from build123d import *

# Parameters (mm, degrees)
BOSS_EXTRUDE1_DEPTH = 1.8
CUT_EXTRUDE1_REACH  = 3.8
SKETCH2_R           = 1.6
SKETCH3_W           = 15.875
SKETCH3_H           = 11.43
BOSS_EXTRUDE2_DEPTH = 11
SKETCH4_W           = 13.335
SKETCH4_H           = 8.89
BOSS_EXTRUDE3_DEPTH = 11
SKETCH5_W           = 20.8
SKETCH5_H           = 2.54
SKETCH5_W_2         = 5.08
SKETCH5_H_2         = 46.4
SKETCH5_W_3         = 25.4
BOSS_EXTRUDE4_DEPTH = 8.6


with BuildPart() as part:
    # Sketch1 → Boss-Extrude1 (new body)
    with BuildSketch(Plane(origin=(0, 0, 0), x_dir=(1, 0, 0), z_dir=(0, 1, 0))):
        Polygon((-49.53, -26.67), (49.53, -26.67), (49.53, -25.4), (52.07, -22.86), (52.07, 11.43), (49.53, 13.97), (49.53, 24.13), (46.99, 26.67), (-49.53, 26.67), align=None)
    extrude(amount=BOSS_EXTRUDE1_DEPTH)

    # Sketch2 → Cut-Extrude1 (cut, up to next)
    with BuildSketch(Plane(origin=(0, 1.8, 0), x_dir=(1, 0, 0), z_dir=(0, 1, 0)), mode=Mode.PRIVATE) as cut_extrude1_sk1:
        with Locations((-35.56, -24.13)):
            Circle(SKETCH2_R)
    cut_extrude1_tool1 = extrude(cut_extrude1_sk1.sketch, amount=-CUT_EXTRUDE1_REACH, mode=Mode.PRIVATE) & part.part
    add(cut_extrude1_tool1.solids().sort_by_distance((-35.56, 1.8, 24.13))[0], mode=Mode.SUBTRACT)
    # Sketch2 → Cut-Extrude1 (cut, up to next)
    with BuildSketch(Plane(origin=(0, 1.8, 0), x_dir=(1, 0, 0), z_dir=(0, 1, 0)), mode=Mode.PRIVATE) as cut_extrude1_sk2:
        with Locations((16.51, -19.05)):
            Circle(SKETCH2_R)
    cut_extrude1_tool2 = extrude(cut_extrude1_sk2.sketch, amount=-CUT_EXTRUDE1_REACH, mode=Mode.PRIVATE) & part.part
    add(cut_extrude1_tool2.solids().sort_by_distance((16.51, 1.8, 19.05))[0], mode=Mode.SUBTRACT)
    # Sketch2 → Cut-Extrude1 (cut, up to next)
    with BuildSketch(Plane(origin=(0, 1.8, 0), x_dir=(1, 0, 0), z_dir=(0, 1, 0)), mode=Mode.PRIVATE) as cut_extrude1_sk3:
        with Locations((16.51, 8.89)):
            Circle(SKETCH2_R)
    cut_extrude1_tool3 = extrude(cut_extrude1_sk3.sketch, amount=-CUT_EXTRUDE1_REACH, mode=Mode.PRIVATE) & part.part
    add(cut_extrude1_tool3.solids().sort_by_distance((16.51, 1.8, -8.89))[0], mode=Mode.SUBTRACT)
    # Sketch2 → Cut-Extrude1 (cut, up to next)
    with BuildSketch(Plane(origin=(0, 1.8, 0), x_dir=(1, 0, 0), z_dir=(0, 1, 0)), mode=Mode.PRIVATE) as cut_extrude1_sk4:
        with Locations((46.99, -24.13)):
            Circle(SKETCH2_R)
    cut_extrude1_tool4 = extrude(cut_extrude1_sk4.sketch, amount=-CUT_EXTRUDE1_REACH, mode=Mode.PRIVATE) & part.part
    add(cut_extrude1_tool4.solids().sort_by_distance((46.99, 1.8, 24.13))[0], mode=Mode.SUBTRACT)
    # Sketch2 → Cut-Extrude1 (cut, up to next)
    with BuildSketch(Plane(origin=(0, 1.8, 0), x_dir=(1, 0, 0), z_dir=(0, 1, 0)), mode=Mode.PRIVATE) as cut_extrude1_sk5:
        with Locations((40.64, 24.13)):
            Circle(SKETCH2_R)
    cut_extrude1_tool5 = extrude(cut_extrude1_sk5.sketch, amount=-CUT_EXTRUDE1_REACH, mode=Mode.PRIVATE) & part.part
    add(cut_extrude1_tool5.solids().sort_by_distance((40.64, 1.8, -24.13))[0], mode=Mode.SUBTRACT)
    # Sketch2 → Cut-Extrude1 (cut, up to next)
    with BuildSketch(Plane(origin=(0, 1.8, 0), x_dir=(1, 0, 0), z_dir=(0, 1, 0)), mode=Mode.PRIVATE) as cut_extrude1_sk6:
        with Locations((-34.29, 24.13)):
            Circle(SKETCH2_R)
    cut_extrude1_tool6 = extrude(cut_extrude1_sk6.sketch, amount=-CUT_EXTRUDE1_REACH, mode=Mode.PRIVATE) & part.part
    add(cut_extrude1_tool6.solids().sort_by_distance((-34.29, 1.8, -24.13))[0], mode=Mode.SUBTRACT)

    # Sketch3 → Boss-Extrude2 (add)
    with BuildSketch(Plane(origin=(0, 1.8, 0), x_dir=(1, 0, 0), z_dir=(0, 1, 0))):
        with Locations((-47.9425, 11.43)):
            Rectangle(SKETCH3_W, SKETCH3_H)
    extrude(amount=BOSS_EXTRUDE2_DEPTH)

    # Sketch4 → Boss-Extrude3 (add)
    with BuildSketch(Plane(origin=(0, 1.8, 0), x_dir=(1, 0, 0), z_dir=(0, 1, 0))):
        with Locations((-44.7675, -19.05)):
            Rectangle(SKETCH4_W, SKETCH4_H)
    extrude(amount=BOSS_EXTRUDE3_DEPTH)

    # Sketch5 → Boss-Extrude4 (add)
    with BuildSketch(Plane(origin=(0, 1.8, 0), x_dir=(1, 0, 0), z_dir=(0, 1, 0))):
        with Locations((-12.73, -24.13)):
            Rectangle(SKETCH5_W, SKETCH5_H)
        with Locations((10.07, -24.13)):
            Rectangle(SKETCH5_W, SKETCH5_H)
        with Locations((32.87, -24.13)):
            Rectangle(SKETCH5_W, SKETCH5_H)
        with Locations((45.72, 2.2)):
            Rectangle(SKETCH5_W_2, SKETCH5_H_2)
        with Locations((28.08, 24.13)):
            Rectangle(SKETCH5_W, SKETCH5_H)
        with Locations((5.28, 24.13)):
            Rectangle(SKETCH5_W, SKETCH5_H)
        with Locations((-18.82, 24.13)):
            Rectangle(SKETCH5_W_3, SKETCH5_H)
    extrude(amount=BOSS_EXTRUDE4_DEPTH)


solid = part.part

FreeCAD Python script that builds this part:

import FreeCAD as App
import Part
import Sketcher

V = App.Vector
Q = App.Units.Quantity


def add_polygon(sketch, points):
    """Adds a closed chain of lines whose ends are joined by coincident constraints."""
    first, n = sketch.GeometryCount, len(points)
    for a, b in zip(points, points[1:] + points[:1]):
        sketch.addGeometry(Part.LineSegment(App.Vector(*a, 0), App.Vector(*b, 0)), False)
    for i in range(n):
        sketch.addConstraint(Sketcher.Constraint("Coincident", first + i, 2, first + (i + 1) % n, 1))

doc = App.newDocument("Part")
params = doc.addObject("Spreadsheet::Sheet", "Params")
for row, (alias, value) in enumerate([
    ("sketch1_width", "3.9 in"),
    ("sketch1_width2", "3.8 in"),
    ("sketch1_height", "0.4 in"),
    ("sketch1_height2", "2.1 in"),
    ("pad1_length", "1.8 mm"),
    ("sketch8_height", "0.45 in"),
    ("sketch8_width", "0.625 in"),
    ("pad2_length", "11 mm"),
    ("sketch9_height", "0.35 in"),
    ("sketch9_width", "0.525 in"),
    ("pad3_length", "11 mm"),
    ("sketch10_width", "1 in"),
    ("sketch10_width2", "0.2 in"),
    ("sketch10_height", "0.1 in"),
    ("pad4_length", "8.6 mm"),
], start=1):
    params.set(f"A{row}", alias)
    params.set(f"B{row}", "=" + value)
    params.setAlias(f"B{row}", alias)

body = doc.addObject("PartDesign::Body", "Body")

# Sketch on XZ plane
sketch1 = body.newObject("Sketcher::SketchObject", "Sketch")
sketch1.AttachmentSupport = (doc.getObject("XZ_Plane"), [""])
sketch1.MapMode = "FlatFace"
add_polygon(sketch1, [(-49.5, 26.7), (49.5, 26.7), (49.5, 25.4), (52.1, 22.9), (52.1, -11.4), (49.5, -14), (49.5, -24.1), (47, -26.7), (-49.5, -26.7)])  # lines 0-8
sketch1.addConstraint(Sketcher.Constraint("Horizontal", 0))
sketch1.addConstraint(Sketcher.Constraint("Vertical", 1))
sketch1.addConstraint(Sketcher.Constraint("Vertical", 3))
sketch1.addConstraint(Sketcher.Constraint("Vertical", 5))
sketch1.addConstraint(Sketcher.Constraint("Horizontal", 7))
sketch1.addConstraint(Sketcher.Constraint("Vertical", 8))
sketch1.addConstraint(Sketcher.Constraint("Symmetric", 0, 2, 7, 2, -1, 1))
sketch1.addConstraint(Sketcher.Constraint("Perpendicular", 2, 4))
sketch1.addConstraint(Sketcher.Constraint("Parallel", 4, 6))
sketch1.addConstraint(Sketcher.Constraint("Vertical", 1, 2, 4, 2))
sketch1.addConstraint(Sketcher.Constraint("Equal", 2, 4))
sketch1.addConstraint(Sketcher.Constraint("Equal", 4, 6))
sketch1.addConstraint(Sketcher.Constraint("DistanceX", 0, 1, 0, 2, Q("3.9 in")))
sketch1.addConstraint(Sketcher.Constraint("DistanceX", 7, 2, 7, 1, Q("3.8 in")))
sketch1.addConstraint(Sketcher.Constraint("DistanceY", 5, 2, 5, 1, Q("0.4 in")))
sketch1.addConstraint(Sketcher.Constraint("DistanceY", 8, 1, 8, 2, Q("2.1 in")))
sketch1.addConstraint(Sketcher.Constraint("DistanceY", -1, 1, 1, 2, Q("1 in")))
sketch1.setExpression("Constraints[21]", "Params.sketch1_width")
sketch1.setExpression("Constraints[22]", "Params.sketch1_width2")
sketch1.setExpression("Constraints[23]", "Params.sketch1_height")
sketch1.setExpression("Constraints[24]", "Params.sketch1_height2")
pad1 = body.newObject("PartDesign::Pad", "Pad")
pad1.Profile = sketch1
pad1.setExpression("Length", "Params.pad1_length")
pad1.Reversed = True

# Sketch on XZ plane
sketch2 = body.newObject("Sketcher::SketchObject", "Sketch001")
sketch2.AttachmentSupport = (doc.getObject("XZ_Plane"), [""])
sketch2.MapMode = "FlatFace"
sketch2.AttachmentOffset = App.Placement(V(0, 0, -1.8), App.Rotation())
sketch2.addGeometry(Part.Circle(V(-35.6, 24.1, 0), V(0, 0, 1), 1.6), False)
sketch2.addConstraint(Sketcher.Constraint("DistanceX", 0, 3, -1, 1, Q("1.4 in")))
sketch2.addConstraint(Sketcher.Constraint("Diameter", 0, Q("3.2 mm")))
sketch2.addConstraint(Sketcher.Constraint("DistanceY", -1, 1, 0, 3, Q("0.95 in")))
pocket1 = body.newObject("PartDesign::Pocket", "Pocket")
pocket1.Profile = sketch2
pocket1.Type = "UpToFirst"
pocket1.Reversed = True

# Sketch on XZ plane
sketch3 = body.newObject("Sketcher::SketchObject", "Sketch002")
sketch3.AttachmentSupport = (doc.getObject("XZ_Plane"), [""])
sketch3.MapMode = "FlatFace"
sketch3.AttachmentOffset = App.Placement(V(0, 0, -1.8), App.Rotation())
sketch3.addGeometry(Part.Circle(V(16.5, 19.1, 0), V(0, 0, 1), 1.6), False)
sketch3.addConstraint(Sketcher.Constraint("Diameter", 0, Q("3.2 mm")))
sketch3.addConstraint(Sketcher.Constraint("DistanceX", -1, 1, 0, 3, Q("0.65 in")))
sketch3.addConstraint(Sketcher.Constraint("DistanceY", -1, 1, 0, 3, Q("0.75 in")))
pocket2 = body.newObject("PartDesign::Pocket", "Pocket001")
pocket2.Profile = sketch3
pocket2.Type = "UpToFirst"
pocket2.Reversed = True

# Sketch on XZ plane
sketch4 = body.newObject("Sketcher::SketchObject", "Sketch003")
sketch4.AttachmentSupport = (doc.getObject("XZ_Plane"), [""])
sketch4.MapMode = "FlatFace"
sketch4.AttachmentOffset = App.Placement(V(0, 0, -1.8), App.Rotation())
sketch4.addGeometry(Part.Circle(V(16.5, -8.9, 0), V(0, 0, 1), 1.6), False)
sketch4.addConstraint(Sketcher.Constraint("Diameter", 0, Q("3.2 mm")))
sketch4.addConstraint(Sketcher.Constraint("DistanceX", -1, 1, 0, 3, Q("0.65 in")))
sketch4.addConstraint(Sketcher.Constraint("DistanceY", 0, 3, -1, 1, Q("0.35 in")))
pocket3 = body.newObject("PartDesign::Pocket", "Pocket002")
pocket3.Profile = sketch4
pocket3.Type = "UpToFirst"
pocket3.Reversed = True

# Sketch on XZ plane
sketch5 = body.newObject("Sketcher::SketchObject", "Sketch004")
sketch5.AttachmentSupport = (doc.getObject("XZ_Plane"), [""])
sketch5.MapMode = "FlatFace"
sketch5.AttachmentOffset = App.Placement(V(0, 0, -1.8), App.Rotation())
sketch5.addGeometry(Part.Circle(V(47, 24.1, 0), V(0, 0, 1), 1.6), False)
sketch5.addConstraint(Sketcher.Constraint("Diameter", 0, Q("3.2 mm")))
sketch5.addConstraint(Sketcher.Constraint("DistanceX", -1, 1, 0, 3, Q("1.85 in")))
sketch5.addConstraint(Sketcher.Constraint("DistanceY", -1, 1, 0, 3, Q("0.95 in")))
pocket4 = body.newObject("PartDesign::Pocket", "Pocket003")
pocket4.Profile = sketch5
pocket4.Type = "UpToFirst"
pocket4.Reversed = True

# Sketch on XZ plane
sketch6 = body.newObject("Sketcher::SketchObject", "Sketch005")
sketch6.AttachmentSupport = (doc.getObject("XZ_Plane"), [""])
sketch6.MapMode = "FlatFace"
sketch6.AttachmentOffset = App.Placement(V(0, 0, -1.8), App.Rotation())
sketch6.addGeometry(Part.Circle(V(40.6, -24.1, 0), V(0, 0, 1), 1.6), False)
sketch6.addConstraint(Sketcher.Constraint("DistanceX", -1, 1, 0, 3, Q("1.6 in")))
sketch6.addConstraint(Sketcher.Constraint("Diameter", 0, Q("3.2 mm")))
sketch6.addConstraint(Sketcher.Constraint("DistanceY", 0, 3, -1, 1, Q("0.95 in")))
pocket5 = body.newObject("PartDesign::Pocket", "Pocket004")
pocket5.Profile = sketch6
pocket5.Type = "UpToFirst"
pocket5.Reversed = True

# Sketch on XZ plane
sketch7 = body.newObject("Sketcher::SketchObject", "Sketch006")
sketch7.AttachmentSupport = (doc.getObject("XZ_Plane"), [""])
sketch7.MapMode = "FlatFace"
sketch7.AttachmentOffset = App.Placement(V(0, 0, -1.8), App.Rotation())
sketch7.addGeometry(Part.Circle(V(-34.3, -24.1, 0), V(0, 0, 1), 1.6), False)
sketch7.addConstraint(Sketcher.Constraint("Diameter", 0, Q("3.2 mm")))
sketch7.addConstraint(Sketcher.Constraint("DistanceX", 0, 3, -1, 1, Q("1.35 in")))
sketch7.addConstraint(Sketcher.Constraint("DistanceY", 0, 3, -1, 1, Q("0.95 in")))
pocket6 = body.newObject("PartDesign::Pocket", "Pocket005")
pocket6.Profile = sketch7
pocket6.Type = "UpToFirst"
pocket6.Reversed = True

# Sketch on XZ plane
sketch8 = body.newObject("Sketcher::SketchObject", "Sketch007")
sketch8.AttachmentSupport = (doc.getObject("XZ_Plane"), [""])
sketch8.MapMode = "FlatFace"
sketch8.AttachmentOffset = App.Placement(V(0, 0, -1.8), App.Rotation())
add_polygon(sketch8, [(-56, -17), (-56, -6), (-40, -6), (-40, -17)])  # lines 0-3
sketch8.addConstraint(Sketcher.Constraint("Vertical", 0))
sketch8.addConstraint(Sketcher.Constraint("Horizontal", 1))
sketch8.addConstraint(Sketcher.Constraint("Vertical", 2))
sketch8.addConstraint(Sketcher.Constraint("Horizontal", 3))
sketch8.addConstraint(Sketcher.Constraint("DistanceY", 0, 1, 0, 2, Q("0.45 in")))
sketch8.addConstraint(Sketcher.Constraint("DistanceX", 0, 2, -1, 1, Q("2.2 in")))
sketch8.addConstraint(Sketcher.Constraint("DistanceX", 1, 1, 1, 2, Q("0.625 in")))
sketch8.addConstraint(Sketcher.Constraint("DistanceY", 0, 2, -1, 1, Q("0.225 in")))
sketch8.setExpression("Constraints[8]", "Params.sketch8_height")
sketch8.setExpression("Constraints[10]", "Params.sketch8_width")
pad2 = body.newObject("PartDesign::Pad", "Pad001")
pad2.Profile = sketch8
pad2.setExpression("Length", "Params.pad2_length")
pad2.Reversed = True

# Sketch on XZ plane
sketch9 = body.newObject("Sketcher::SketchObject", "Sketch008")
sketch9.AttachmentSupport = (doc.getObject("XZ_Plane"), [""])
sketch9.MapMode = "FlatFace"
sketch9.AttachmentOffset = App.Placement(V(0, 0, -1.8), App.Rotation())
add_polygon(sketch9, [(-51, 15), (-51, 23), (-38, 23), (-38, 15)])  # lines 0-3
sketch9.addConstraint(Sketcher.Constraint("Vertical", 0))
sketch9.addConstraint(Sketcher.Constraint("Horizontal", 1))
sketch9.addConstraint(Sketcher.Constraint("Vertical", 2))
sketch9.addConstraint(Sketcher.Constraint("Horizontal", 3))
sketch9.addConstraint(Sketcher.Constraint("DistanceY", 0, 1, 0, 2, Q("0.35 in")))
sketch9.addConstraint(Sketcher.Constraint("DistanceX", 1, 2, -1, 1, Q("1.5 in")))
sketch9.addConstraint(Sketcher.Constraint("DistanceX", 1, 1, 1, 2, Q("0.525 in")))
sketch9.addConstraint(Sketcher.Constraint("DistanceY", -1, 1, 0, 2, Q("0.925 in")))
sketch9.setExpression("Constraints[8]", "Params.sketch9_height")
sketch9.setExpression("Constraints[10]", "Params.sketch9_width")
pad3 = body.newObject("PartDesign::Pad", "Pad002")
pad3.Profile = sketch9
pad3.setExpression("Length", "Params.pad3_length")
pad3.Reversed = True

# Sketch on XZ plane
sketch10 = body.newObject("Sketcher::SketchObject", "Sketch009")
sketch10.AttachmentSupport = (doc.getObject("XZ_Plane"), [""])
sketch10.MapMode = "FlatFace"
sketch10.AttachmentOffset = App.Placement(V(0, 0, -1.8), App.Rotation())
add_polygon(sketch10, [(-23.1, 22.9), (-23.1, 25.4), (-2.3, 25.4), (-2.3, 22.9)])  # lines 0-3
add_polygon(sketch10, [(-0.3, 22.9), (-0.3, 25.4), (20.5, 25.4), (20.5, 22.9)])  # lines 4-7
add_polygon(sketch10, [(22.5, 22.9), (22.5, 25.4), (43.3, 25.4), (43.3, 22.9)])  # lines 8-11
add_polygon(sketch10, [(43.2, -25.4), (43.2, 21), (48.3, 21), (48.3, -25.4)])  # lines 12-15
add_polygon(sketch10, [(17.7, -25.4), (17.7, -22.9), (38.5, -22.9), (38.5, -25.4)])  # lines 16-19
add_polygon(sketch10, [(-5.1, -25.4), (-5.1, -22.9), (15.7, -22.9), (15.7, -25.4)])  # lines 20-23
add_polygon(sketch10, [(-31.5, -25.4), (-31.5, -22.9), (-6.1, -22.9), (-6.1, -25.4)])  # lines 24-27
sketch10.addConstraint(Sketcher.Constraint("Vertical", 0))
sketch10.addConstraint(Sketcher.Constraint("Horizontal", 1))
sketch10.addConstraint(Sketcher.Constraint("Vertical", 2))
sketch10.addConstraint(Sketcher.Constraint("Horizontal", 3))
sketch10.addConstraint(Sketcher.Constraint("Vertical", 4))
sketch10.addConstraint(Sketcher.Constraint("Horizontal", 5))
sketch10.addConstraint(Sketcher.Constraint("Vertical", 6))
sketch10.addConstraint(Sketcher.Constraint("Horizontal", 7))
sketch10.addConstraint(Sketcher.Constraint("Vertical", 8))
sketch10.addConstraint(Sketcher.Constraint("Horizontal", 9))
sketch10.addConstraint(Sketcher.Constraint("Vertical", 10))
sketch10.addConstraint(Sketcher.Constraint("Horizontal", 11))
sketch10.addConstraint(Sketcher.Constraint("Vertical", 12))
sketch10.addConstraint(Sketcher.Constraint("Horizontal", 13))
sketch10.addConstraint(Sketcher.Constraint("Vertical", 14))
sketch10.addConstraint(Sketcher.Constraint("Horizontal", 15))
sketch10.addConstraint(Sketcher.Constraint("Vertical", 16))
sketch10.addConstraint(Sketcher.Constraint("Horizontal", 17))
sketch10.addConstraint(Sketcher.Constraint("Vertical", 18))
sketch10.addConstraint(Sketcher.Constraint("Horizontal", 19))
sketch10.addConstraint(Sketcher.Constraint("Vertical", 20))
sketch10.addConstraint(Sketcher.Constraint("Horizontal", 21))
sketch10.addConstraint(Sketcher.Constraint("Vertical", 22))
sketch10.addConstraint(Sketcher.Constraint("Horizontal", 23))
sketch10.addConstraint(Sketcher.Constraint("Vertical", 24))
sketch10.addConstraint(Sketcher.Constraint("Horizontal", 25))
sketch10.addConstraint(Sketcher.Constraint("Vertical", 26))
sketch10.addConstraint(Sketcher.Constraint("Horizontal", 27))
sketch10.addConstraint(Sketcher.Constraint("Horizontal", 1, 2, 4, 2))
sketch10.addConstraint(Sketcher.Constraint("Horizontal", 3, 2, 6, 2))
sketch10.addConstraint(Sketcher.Constraint("Horizontal", 5, 2, 8, 2))
sketch10.addConstraint(Sketcher.Constraint("Horizontal", 7, 2, 10, 2))
sketch10.addConstraint(Sketcher.Constraint("Horizontal", 15, 2, 18, 2))
sketch10.addConstraint(Sketcher.Constraint("Horizontal", 17, 2, 20, 2))
sketch10.addConstraint(Sketcher.Constraint("Horizontal", 19, 2, 22, 2))
sketch10.addConstraint(Sketcher.Constraint("Horizontal", 21, 2, 24, 2))
sketch10.addConstraint(Sketcher.Constraint("Horizontal", 23, 2, 26, 2))
sketch10.addConstraint(Sketcher.Constraint("Equal", 3, 5))
sketch10.addConstraint(Sketcher.Constraint("Equal", 7, 9))
sketch10.addConstraint(Sketcher.Constraint("Equal", 11, 17))
sketch10.addConstraint(Sketcher.Constraint("Equal", 19, 21))
sketch10.addConstraint(Sketcher.Constraint("Equal", 10, 16))
sketch10.addConstraint(Sketcher.Constraint("DistanceX", 25, 1, 25, 2, Q("1 in")))
sketch10.addConstraint(Sketcher.Constraint("DistanceX", 13, 1, 13, 2, Q("0.2 in")))
sketch10.addConstraint(Sketcher.Constraint("DistanceY", 0, 1, 0, 2, Q("0.1 in")))
sketch10.addConstraint(Sketcher.Constraint("DistanceY", -1, 1, 0, 2, Q("1 in")))
sketch10.addConstraint(Sketcher.Constraint("DistanceY", 14, 2, -1, 1, Q("1 in")))
sketch10.addConstraint(Sketcher.Constraint("DistanceX", -1, 1, 12, 2, Q("1.7 in")))
sketch10.addConstraint(Sketcher.Constraint("DistanceX", 1, 1, 1, 2, Q("20.8 mm")))
sketch10.addConstraint(Sketcher.Constraint("DistanceY", 12, 1, 12, 2, Q("46.4 mm")))
sketch10.addConstraint(Sketcher.Constraint("DistanceX", 0, 2, -1, 1, Q("23.13 mm")))
sketch10.addConstraint(Sketcher.Constraint("DistanceX", 4, 2, -1, 1, Q("0.33 mm")))
sketch10.addConstraint(Sketcher.Constraint("DistanceX", -1, 1, 8, 2, Q("22.47 mm")))
sketch10.addConstraint(Sketcher.Constraint("DistanceX", -1, 1, 16, 2, Q("17.68 mm")))
sketch10.addConstraint(Sketcher.Constraint("DistanceX", 20, 2, -1, 1, Q("5.12 mm")))
sketch10.addConstraint(Sketcher.Constraint("DistanceX", 24, 2, -1, 1, Q("31.52 mm")))
sketch10.setExpression("Constraints[70]", "Params.sketch10_width")
sketch10.setExpression("Constraints[71]", "Params.sketch10_width2")
sketch10.setExpression("Constraints[72]", "Params.sketch10_height")
pad4 = body.newObject("PartDesign::Pad", "Pad003")
pad4.Profile = sketch10
pad4.setExpression("Length", "Params.pad4_length")
pad4.Reversed = True

doc.recompute()
